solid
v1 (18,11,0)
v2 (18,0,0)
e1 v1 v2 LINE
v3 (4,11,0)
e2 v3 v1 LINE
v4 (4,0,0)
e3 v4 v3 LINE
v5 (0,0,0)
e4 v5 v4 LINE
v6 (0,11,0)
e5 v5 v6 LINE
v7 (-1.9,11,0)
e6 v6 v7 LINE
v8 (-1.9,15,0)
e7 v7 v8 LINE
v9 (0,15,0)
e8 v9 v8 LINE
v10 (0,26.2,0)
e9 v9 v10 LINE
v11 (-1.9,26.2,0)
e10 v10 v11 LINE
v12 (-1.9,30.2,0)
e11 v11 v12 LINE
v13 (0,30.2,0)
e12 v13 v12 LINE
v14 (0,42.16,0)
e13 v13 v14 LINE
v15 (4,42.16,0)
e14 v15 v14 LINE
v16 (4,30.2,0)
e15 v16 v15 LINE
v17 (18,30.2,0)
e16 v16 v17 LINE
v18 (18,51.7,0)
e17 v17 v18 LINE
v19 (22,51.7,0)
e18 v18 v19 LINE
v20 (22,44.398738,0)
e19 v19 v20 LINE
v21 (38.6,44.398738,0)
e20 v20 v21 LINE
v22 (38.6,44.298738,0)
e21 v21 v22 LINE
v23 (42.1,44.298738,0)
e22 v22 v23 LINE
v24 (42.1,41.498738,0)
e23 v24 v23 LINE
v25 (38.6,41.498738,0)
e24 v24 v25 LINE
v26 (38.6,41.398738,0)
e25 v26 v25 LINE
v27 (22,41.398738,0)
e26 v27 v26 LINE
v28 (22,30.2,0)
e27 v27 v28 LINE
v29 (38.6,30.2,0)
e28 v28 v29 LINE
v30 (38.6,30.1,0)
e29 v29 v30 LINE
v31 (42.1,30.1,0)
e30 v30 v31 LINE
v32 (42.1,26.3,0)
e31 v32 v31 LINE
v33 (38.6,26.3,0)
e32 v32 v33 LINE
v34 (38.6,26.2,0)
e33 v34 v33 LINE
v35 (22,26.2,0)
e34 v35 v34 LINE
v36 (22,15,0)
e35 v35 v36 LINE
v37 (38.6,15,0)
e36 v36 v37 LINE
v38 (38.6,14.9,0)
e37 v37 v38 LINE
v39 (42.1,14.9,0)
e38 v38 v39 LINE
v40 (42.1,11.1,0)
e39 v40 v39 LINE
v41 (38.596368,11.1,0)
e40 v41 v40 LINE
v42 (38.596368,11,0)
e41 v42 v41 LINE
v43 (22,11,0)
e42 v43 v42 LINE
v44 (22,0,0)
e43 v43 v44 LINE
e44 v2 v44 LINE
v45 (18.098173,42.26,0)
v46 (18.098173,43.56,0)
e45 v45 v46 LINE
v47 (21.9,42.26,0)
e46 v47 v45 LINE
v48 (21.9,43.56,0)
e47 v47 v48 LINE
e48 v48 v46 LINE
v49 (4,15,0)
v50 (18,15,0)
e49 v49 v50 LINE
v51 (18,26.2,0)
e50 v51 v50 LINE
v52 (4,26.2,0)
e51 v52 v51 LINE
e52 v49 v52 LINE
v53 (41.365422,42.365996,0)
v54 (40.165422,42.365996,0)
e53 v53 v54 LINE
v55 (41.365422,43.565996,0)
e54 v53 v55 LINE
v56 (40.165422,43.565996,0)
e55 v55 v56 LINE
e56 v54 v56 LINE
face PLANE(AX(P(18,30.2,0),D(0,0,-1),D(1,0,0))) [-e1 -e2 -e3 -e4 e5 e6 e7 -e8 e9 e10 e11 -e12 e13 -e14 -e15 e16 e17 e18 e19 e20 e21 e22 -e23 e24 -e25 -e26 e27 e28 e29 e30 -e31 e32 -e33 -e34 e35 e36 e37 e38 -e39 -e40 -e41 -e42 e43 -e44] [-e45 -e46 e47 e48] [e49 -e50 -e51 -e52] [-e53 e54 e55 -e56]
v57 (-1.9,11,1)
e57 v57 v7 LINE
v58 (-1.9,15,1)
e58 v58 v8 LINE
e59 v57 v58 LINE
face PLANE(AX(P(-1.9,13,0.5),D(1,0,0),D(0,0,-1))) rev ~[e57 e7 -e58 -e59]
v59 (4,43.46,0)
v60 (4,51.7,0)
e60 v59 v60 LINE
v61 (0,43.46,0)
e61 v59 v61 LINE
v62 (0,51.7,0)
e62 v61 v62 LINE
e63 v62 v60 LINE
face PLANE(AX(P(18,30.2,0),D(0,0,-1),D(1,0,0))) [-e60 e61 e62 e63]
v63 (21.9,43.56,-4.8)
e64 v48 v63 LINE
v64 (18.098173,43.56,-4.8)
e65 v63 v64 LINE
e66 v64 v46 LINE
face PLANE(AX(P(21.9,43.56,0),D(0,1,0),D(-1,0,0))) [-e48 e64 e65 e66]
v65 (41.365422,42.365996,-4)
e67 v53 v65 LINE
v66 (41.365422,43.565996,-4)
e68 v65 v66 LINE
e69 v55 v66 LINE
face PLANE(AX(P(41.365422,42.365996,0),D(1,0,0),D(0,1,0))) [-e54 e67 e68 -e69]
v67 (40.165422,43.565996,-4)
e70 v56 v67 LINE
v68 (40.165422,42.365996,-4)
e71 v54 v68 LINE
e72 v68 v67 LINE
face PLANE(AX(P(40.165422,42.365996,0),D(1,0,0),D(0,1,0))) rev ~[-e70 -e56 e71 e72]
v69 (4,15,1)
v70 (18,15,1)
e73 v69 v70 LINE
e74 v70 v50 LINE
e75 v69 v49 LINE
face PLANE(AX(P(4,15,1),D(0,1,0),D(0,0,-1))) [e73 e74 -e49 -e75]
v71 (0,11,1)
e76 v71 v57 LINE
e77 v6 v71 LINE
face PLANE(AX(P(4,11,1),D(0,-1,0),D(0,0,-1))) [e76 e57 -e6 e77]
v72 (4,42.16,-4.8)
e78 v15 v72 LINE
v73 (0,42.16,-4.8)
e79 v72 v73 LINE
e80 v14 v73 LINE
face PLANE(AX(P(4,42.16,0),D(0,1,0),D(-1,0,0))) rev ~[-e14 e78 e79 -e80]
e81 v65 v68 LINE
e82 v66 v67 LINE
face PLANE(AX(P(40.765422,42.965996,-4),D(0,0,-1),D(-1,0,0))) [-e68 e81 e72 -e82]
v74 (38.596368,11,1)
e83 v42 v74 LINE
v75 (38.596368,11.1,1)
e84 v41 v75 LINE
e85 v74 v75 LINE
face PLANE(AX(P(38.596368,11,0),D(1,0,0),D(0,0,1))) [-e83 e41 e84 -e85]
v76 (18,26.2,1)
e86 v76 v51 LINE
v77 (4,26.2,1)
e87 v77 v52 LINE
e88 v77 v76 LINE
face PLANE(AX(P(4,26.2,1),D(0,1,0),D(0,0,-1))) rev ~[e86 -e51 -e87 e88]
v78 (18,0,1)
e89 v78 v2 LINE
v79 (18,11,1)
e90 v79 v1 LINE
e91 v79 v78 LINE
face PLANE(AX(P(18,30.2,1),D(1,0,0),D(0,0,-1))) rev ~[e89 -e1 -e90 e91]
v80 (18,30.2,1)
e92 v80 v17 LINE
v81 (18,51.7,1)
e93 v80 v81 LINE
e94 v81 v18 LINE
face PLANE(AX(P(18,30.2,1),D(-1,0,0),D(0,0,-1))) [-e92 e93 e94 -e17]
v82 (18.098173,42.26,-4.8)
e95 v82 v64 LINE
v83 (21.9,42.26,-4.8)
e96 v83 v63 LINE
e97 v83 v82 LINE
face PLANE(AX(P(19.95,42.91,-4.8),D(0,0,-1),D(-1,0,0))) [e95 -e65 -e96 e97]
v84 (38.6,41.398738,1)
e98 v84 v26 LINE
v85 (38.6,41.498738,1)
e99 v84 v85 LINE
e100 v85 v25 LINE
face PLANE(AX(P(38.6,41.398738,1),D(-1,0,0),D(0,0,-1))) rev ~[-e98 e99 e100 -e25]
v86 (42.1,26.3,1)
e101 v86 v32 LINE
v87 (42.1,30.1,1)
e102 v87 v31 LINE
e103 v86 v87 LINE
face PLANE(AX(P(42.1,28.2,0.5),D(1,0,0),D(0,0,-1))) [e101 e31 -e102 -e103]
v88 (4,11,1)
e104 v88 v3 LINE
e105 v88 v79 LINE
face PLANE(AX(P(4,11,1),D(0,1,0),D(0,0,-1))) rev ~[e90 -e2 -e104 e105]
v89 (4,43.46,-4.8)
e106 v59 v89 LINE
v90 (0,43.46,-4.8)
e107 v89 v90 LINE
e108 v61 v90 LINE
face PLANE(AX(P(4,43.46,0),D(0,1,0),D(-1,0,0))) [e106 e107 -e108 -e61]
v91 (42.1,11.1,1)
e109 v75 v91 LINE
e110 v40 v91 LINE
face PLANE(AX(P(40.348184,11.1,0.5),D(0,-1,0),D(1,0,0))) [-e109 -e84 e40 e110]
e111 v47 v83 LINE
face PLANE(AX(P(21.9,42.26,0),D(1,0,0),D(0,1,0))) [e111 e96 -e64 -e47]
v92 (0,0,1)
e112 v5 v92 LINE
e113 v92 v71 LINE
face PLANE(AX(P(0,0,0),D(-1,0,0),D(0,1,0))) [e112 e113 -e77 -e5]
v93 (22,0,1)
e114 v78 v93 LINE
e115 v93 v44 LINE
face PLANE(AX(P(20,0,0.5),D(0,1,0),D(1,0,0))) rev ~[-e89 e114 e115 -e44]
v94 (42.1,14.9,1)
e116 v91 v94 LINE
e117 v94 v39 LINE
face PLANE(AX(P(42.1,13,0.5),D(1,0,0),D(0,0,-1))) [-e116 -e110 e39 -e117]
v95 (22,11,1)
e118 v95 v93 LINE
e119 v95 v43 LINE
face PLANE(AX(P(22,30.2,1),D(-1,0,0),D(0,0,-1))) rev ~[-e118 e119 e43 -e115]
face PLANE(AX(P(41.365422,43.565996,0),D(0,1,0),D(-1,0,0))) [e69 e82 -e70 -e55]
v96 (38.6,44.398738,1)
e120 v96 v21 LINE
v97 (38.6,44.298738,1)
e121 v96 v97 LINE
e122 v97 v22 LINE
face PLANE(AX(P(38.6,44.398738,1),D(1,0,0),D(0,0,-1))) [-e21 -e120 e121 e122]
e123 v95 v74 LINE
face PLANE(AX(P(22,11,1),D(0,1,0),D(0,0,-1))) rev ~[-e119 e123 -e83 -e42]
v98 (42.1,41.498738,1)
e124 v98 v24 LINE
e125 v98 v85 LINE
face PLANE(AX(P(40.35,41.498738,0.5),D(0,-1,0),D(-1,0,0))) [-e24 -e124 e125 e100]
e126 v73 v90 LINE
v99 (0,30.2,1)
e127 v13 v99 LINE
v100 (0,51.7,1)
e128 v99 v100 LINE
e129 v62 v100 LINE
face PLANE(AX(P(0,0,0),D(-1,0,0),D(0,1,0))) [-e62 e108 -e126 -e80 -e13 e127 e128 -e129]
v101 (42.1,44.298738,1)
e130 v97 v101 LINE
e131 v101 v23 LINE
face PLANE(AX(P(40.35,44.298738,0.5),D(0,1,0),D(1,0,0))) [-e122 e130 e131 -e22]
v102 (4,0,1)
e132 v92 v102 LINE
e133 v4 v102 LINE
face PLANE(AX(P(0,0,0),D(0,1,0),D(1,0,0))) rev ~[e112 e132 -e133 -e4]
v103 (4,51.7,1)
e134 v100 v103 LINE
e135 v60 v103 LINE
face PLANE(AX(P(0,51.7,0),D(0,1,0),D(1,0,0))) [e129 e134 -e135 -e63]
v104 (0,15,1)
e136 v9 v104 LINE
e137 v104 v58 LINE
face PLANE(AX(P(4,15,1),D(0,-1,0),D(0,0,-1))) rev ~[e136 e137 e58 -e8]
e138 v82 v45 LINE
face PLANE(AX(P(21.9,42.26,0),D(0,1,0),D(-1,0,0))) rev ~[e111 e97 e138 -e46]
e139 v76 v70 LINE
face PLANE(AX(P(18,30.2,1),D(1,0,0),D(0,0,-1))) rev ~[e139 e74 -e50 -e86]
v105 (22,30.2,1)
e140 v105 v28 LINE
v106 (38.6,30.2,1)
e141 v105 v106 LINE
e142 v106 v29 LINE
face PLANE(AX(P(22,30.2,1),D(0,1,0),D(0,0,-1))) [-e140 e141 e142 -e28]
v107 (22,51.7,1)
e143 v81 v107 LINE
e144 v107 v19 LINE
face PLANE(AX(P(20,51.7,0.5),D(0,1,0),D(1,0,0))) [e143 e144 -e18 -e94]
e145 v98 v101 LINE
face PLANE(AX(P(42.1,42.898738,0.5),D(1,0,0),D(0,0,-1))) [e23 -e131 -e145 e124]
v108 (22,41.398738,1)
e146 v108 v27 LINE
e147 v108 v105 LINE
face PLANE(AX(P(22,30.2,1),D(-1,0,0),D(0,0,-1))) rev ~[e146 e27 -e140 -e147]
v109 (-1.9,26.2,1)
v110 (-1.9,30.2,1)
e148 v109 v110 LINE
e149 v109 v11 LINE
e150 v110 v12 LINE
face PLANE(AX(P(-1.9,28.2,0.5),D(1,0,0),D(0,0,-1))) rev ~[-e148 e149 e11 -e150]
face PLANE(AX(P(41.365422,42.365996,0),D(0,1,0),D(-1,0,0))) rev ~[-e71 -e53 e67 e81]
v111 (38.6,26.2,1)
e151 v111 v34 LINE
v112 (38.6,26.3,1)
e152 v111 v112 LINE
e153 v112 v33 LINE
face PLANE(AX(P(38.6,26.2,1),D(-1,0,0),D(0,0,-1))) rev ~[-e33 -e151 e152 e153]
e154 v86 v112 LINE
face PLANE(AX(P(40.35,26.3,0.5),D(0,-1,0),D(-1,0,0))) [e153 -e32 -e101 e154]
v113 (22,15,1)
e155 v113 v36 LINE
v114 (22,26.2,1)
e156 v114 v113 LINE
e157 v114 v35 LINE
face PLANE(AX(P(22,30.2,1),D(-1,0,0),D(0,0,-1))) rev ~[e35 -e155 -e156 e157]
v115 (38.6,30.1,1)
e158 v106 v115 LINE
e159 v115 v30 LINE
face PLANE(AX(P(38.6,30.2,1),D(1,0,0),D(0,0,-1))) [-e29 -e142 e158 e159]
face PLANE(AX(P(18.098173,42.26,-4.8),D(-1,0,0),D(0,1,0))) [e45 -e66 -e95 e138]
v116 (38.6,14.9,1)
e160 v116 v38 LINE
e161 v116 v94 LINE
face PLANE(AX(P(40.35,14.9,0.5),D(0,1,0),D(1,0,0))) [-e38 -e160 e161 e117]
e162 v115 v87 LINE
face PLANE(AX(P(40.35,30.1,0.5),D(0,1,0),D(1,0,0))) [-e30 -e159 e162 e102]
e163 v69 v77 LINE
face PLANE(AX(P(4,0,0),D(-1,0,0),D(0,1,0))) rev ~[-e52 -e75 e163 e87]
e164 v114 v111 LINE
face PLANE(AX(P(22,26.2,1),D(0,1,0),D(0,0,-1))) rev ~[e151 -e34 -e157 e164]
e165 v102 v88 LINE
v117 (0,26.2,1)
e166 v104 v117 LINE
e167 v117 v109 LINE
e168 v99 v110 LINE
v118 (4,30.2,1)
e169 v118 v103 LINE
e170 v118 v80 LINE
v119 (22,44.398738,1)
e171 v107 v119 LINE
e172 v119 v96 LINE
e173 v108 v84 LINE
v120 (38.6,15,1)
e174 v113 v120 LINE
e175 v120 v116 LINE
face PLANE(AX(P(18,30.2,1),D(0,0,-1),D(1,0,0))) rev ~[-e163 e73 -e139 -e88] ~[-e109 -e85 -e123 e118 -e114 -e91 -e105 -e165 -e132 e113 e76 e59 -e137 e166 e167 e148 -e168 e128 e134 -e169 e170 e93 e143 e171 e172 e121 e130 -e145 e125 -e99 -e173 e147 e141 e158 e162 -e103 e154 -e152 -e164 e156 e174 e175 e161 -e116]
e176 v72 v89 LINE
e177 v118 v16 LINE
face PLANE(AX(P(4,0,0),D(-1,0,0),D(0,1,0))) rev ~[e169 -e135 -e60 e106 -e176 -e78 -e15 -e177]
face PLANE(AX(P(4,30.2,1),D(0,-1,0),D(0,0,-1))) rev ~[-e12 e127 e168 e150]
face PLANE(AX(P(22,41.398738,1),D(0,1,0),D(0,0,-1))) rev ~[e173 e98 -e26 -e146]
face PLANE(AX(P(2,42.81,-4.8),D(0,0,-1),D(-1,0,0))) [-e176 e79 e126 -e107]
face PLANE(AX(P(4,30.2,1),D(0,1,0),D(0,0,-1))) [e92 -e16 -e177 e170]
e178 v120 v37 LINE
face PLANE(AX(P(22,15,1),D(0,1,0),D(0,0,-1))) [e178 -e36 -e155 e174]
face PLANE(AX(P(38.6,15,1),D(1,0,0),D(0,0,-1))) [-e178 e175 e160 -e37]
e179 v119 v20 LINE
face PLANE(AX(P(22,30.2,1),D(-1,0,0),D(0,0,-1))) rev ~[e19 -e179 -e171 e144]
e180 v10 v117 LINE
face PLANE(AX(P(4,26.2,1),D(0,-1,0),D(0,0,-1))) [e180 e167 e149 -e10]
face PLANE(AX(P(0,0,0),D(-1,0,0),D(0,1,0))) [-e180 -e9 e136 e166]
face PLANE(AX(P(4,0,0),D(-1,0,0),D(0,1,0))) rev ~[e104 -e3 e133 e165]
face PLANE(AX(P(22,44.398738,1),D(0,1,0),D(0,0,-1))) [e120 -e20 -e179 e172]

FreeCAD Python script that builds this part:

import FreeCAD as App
import Part
import Sketcher

V = App.Vector
Q = App.Units.Quantity

doc = App.newDocument("Part")
params = doc.addObject("Spreadsheet::Sheet", "Params")
for row, (alias, value) in enumerate([
    ("sketch1_width", "4 mm"),
    ("sketch1_height", "51.7 mm"),
    ("pad1_length", "1 mm"),
    ("sketch2_width", "4 mm"),
    ("sketch2_height", "1 mm"),
    ("pad2_length", "18 mm"),
    ("pad2_length2", "5.9 mm"),
    ("sketch3_width", "4 mm"),
    ("sketch3_height", "1 mm"),
    ("pad3_length", "18 mm"),
    ("pad3_length2", "5.9 mm"),
    ("sketch4_width", "4 mm"),
    ("sketch4_height", "1 mm"),
    ("pad4_length", "21.5 mm"),
    ("pad4_length2", "30.2 mm"),
    ("sketch5_width", "3 mm"),
    ("sketch5_height", "1 mm"),
    ("pad5_length", "21 mm"),
    ("sketch6_width", "4 mm"),
    ("sketch6_height", "1 mm"),
    ("pad6_length", "21 mm"),
    ("sketch7_width", "4 mm"),
    ("sketch7_height", "1 mm"),
    ("pad7_length", "21 mm"),
    ("sketch8_width", "4 mm"),
    ("sketch8_height", "1.3 mm"),
    ("pad8_length", "4.8 mm"),
    ("sketch9_width", "3.9 mm"),
    ("sketch9_height", "1.3 mm"),
    ("pad9_length", "4.8 mm"),
    ("sketch10_width", "1.2 mm"),
    ("pad10_length", "4 mm"),
    ("sketch11_width", "4 mm"),
    ("sketch11_height", "1 mm"),
    ("pocket1_length", "0.9 mm"),
    ("sketch12_width", "4 mm"),
    ("sketch12_height", "1 mm"),
    ("pocket2_length", "0.9 mm"),
    ("sketch13_width", "3 mm"),
    ("sketch13_height", "1 mm"),
    ("pocket3_length", "0.9 mm"),
    ("sketch14_height", "1 mm"),
    ("pocket4_length", "0.1 mm"),
    ("sketch15_height", "1 mm"),
    ("sketch15_width", "3.5 mm"),
    ("pocket5_length", "0.1 mm"),
    ("sketch16_height", "1 mm"),
    ("sketch16_width", "3.5 mm"),
    ("pocket6_length", "0.1 mm"),
    ("sketch17_height", "1 mm"),
    ("sketch17_width", "3.5 mm"),
    ("pocket7_length", "0.1 mm"),
    ("sketch18_height", "1 mm"),
    ("sketch18_width", "3.5 mm"),
    ("pocket8_length", "0.1 mm"),
    ("sketch19_height", "1 mm"),
    ("sketch19_width", "3.5 mm"),
    ("pocket9_length", "0.1 mm"),
    ("sketch20_height", "1.3 mm"),
    ("pocket10_length", "4.8 mm"),
], start=1):
    params.set(f"A{row}", alias)
    params.set(f"B{row}", "=" + value)
    params.setAlias(f"B{row}", alias)

body = doc.addObject("PartDesign::Body", "Body")

sketch1 = body.newObject("Sketcher::SketchObject", "Sketch")
sketch1.AttachmentSupport = (doc.getObject("XY_Plane"), [""])
sketch1.MapMode = "FlatFace"
sketch1.addGeometry([
    Part.LineSegment(V(0, 51.7, 0), V(0, 0, 0)),
    Part.LineSegment(V(0, 0, 0), V(4, 0, 0)),
    Part.LineSegment(V(4, 0, 0), V(4, 51.7, 0)),
    Part.LineSegment(V(4, 51.7, 0), V(0, 51.7, 0)),
], False)
sketch1.addConstraint([
    Sketcher.Constraint("Coincident", 0, 2, 1, 1),
    Sketcher.Constraint("Coincident", 1, 2, 2, 1),
    Sketcher.Constraint("Coincident", 2, 2, 3, 1),
    Sketcher.Constraint("Coincident", 3, 2, 0, 1),
    Sketcher.Constraint("Vertical", 0),
    Sketcher.Constraint("Horizontal", 1),
    Sketcher.Constraint("Vertical", 2),
    Sketcher.Constraint("Horizontal", 3),
    Sketcher.Constraint("Coincident", 0, 2, -1, 1),
    Sketcher.Constraint("DistanceX", 1, 1, 1, 2, Q("4 mm")),
    Sketcher.Constraint("DistanceY", 0, 2, 0, 1, Q("51.7 mm")),
])
sketch1.setExpression("Constraints[9]", "Params.sketch1_width")
sketch1.setExpression("Constraints[10]", "Params.sketch1_height")
pad1 = body.newObject("PartDesign::Pad", "Pad")
pad1.Profile = sketch1
pad1.setExpression("Length", "Params.pad1_length")

sketch2 = body.newObject("Sketcher::SketchObject", "Sketch001")
sketch2.AttachmentSupport = (doc.getObject("YZ_Plane"), [""])
sketch2.MapMode = "FlatFace"
sketch2.AttachmentOffset = App.Placement(V(0, 0, 4), App.Rotation())
sketch2.addGeometry([
    Part.LineSegment(V(30.2, 1, 0), V(26.2, 1, 0)),
    Part.LineSegment(V(26.2, 1, 0), V(26.2, 0, 0)),
    Part.LineSegment(V(26.2, 0, 0), V(30.2, 0, 0)),
    Part.LineSegment(V(30.2, 0, 0), V(30.2, 1, 0)),
], False)
sketch2.addConstraint([
    Sketcher.Constraint("Coincident", 0, 2, 1, 1),
    Sketcher.Constraint("Coincident", 1, 2, 2, 1),
    Sketcher.Constraint("Coincident", 2, 2, 3, 1),
    Sketcher.Constraint("Coincident", 3, 2, 0, 1),
    Sketcher.Constraint("Horizontal", 0),
    Sketcher.Constraint("Vertical", 1),
    Sketcher.Constraint("Horizontal", 2),
    Sketcher.Constraint("Vertical", 3),
    Sketcher.Constraint("PointOnObject", 1, 2, -1),
    Sketcher.Constraint("DistanceX", 0, 2, 0, 1, Q("4 mm")),
    Sketcher.Constraint("DistanceY", 1, 2, 1, 1, Q("1 mm")),
    Sketcher.Constraint("DistanceX", -1, 1, 0, 2, Q("26.2 mm")),
])
sketch2.setExpression("Constraints[9]", "Params.sketch2_width")
sketch2.setExpression("Constraints[10]", "Params.sketch2_height")
pad2 = body.newObject("PartDesign::Pad", "Pad001")
pad2.Profile = sketch2
pad2.Type = "TwoLengths"
pad2.setExpression("Length", "Params.pad2_length")
pad2.setExpression("Length2", "Params.pad2_length2")

sketch3 = body.newObject("Sketcher::SketchObject", "Sketch002")
sketch3.AttachmentSupport = (doc.getObject("YZ_Plane"), [""])
sketch3.MapMode = "FlatFace"
sketch3.AttachmentOffset = App.Placement(V(0, 0, 4), App.Rotation())
sketch3.addGeometry([
    Part.LineSegment(V(15, 1, 0), V(11, 1, 0)),
    Part.LineSegment(V(11, 1, 0), V(11, 0, 0)),
    Part.LineSegment(V(11, 0, 0), V(15, 0, 0)),
    Part.LineSegment(V(15, 0, 0), V(15, 1, 0)),
], False)
sketch3.addConstraint([
    Sketcher.Constraint("Coincident", 0, 2, 1, 1),
    Sketcher.Constraint("Coincident", 1, 2, 2, 1),
    Sketcher.Constraint("Coincident", 2, 2, 3, 1),
    Sketcher.Constraint("Coincident", 3, 2, 0, 1),
    Sketcher.Constraint("Horizontal", 0),
    Sketcher.Constraint("Vertical", 1),
    Sketcher.Constraint("Horizontal", 2),
    Sketcher.Constraint("Vertical", 3),
    Sketcher.Constraint("PointOnObject", 1, 2, -1),
    Sketcher.Constraint("DistanceX", 0, 2, 0, 1, Q("4 mm")),
    Sketcher.Constraint("DistanceY", 1, 2, 1, 1, Q("1 mm")),
    Sketcher.Constraint("DistanceX", -1, 1, 0, 2, Q("11 mm")),
])
sketch3.setExpression("Constraints[9]", "Params.sketch3_width")
sketch3.setExpression("Constraints[10]", "Params.sketch3_height")
pad3 = body.newObject("PartDesign::Pad", "Pad002")
pad3.Profile = sketch3
pad3.Type = "TwoLengths"
pad3.setExpression("Length", "Params.pad3_length")
pad3.setExpression("Length2", "Params.pad3_length2")

sketch4 = body.newObject("Sketcher::SketchObject", "Sketch003")
sketch4.AttachmentSupport = (doc.getObject("XZ_Plane"), [""])
sketch4.MapMode = "FlatFace"
sketch4.AttachmentOffset = App.Placement(V(0, 0, -30.2), App.Rotation())
sketch4.addGeometry([
    Part.LineSegment(V(18, 0, 0), V(18, 1, 0)),
    Part.LineSegment(V(18, 1, 0), V(22, 1, 0)),
    Part.LineSegment(V(22, 1, 0), V(22, 0, 0)),
    Part.LineSegment(V(22, 0, 0), V(18, 0, 0)),
], False)
sketch4.addConstraint([
    Sketcher.Constraint("Coincident", 0, 2, 1, 1),
    Sketcher.Constraint("Coincident", 1, 2, 2, 1),
    Sketcher.Constraint("Coincident", 2, 2, 3, 1),
    Sketcher.Constraint("Coincident", 3, 2, 0, 1),
    Sketcher.Constraint("Vertical", 0),
    Sketcher.Constraint("Horizontal", 1),
    Sketcher.Constraint("Vertical", 2),
    Sketcher.Constraint("Horizontal", 3),
    Sketcher.Constraint("PointOnObject", 2, 2, -1),
    Sketcher.Constraint("DistanceX", 1, 1, 1, 2, Q("4 mm")),
    Sketcher.Constraint("DistanceY", 0, 1, 0, 2, Q("1 mm")),
    Sketcher.Constraint("DistanceX", -1, 1, 0, 2, Q("18 mm")),
])
sketch4.setExpression("Constraints[9]", "Params.sketch4_width")
sketch4.setExpression("Constraints[10]", "Params.sketch4_height")
pad4 = body.newObject("PartDesign::Pad", "Pad003")
pad4.Profile = sketch4
pad4.Type = "TwoLengths"
pad4.setExpression("Length", "Params.pad4_length")
pad4.setExpression("Length2", "Params.pad4_length2")
pad4.Reversed = True

sketch5 = body.newObject("Sketcher::SketchObject", "Sketch004")
sketch5.AttachmentSupport = (doc.getObject("YZ_Plane"), [""])
sketch5.MapMode = "FlatFace"
sketch5.AttachmentOffset = App.Placement(V(0, 0, 22), App.Rotation())
sketch5.addGeometry([
    Part.LineSegment(V(44.4, 1, 0), V(41.4, 1, 0)),
    Part.LineSegment(V(41.4, 1, 0), V(41.4, 0, 0)),
    Part.LineSegment(V(41.4, 0, 0), V(44.4, 0, 0)),
    Part.LineSegment(V(44.4, 0, 0), V(44.4, 1, 0)),
], False)
sketch5.addConstraint([
    Sketcher.Constraint("Coincident", 0, 2, 1, 1),
    Sketcher.Constraint("Coincident", 1, 2, 2, 1),
    Sketcher.Constraint("Coincident", 2, 2, 3, 1),
    Sketcher.Constraint("Coincident", 3, 2, 0, 1),
    Sketcher.Constraint("Horizontal", 0),
    Sketcher.Constraint("Vertical", 1),
    Sketcher.Constraint("Horizontal", 2),
    Sketcher.Constraint("Vertical", 3),
    Sketcher.Constraint("PointOnObject", 1, 2, -1),
    Sketcher.Constraint("DistanceX", 0, 2, 0, 1, Q("3 mm")),
    Sketcher.Constraint("DistanceY", 1, 2, 1, 1, Q("1 mm")),
    Sketcher.Constraint("DistanceX", -1, 1, 0, 2, Q("41.398738 mm")),
])
sketch5.setExpression("Constraints[9]", "Params.sketch5_width")
sketch5.setExpression("Constraints[10]", "Params.sketch5_height")
pad5 = body.newObject("PartDesign::Pad", "Pad004")
pad5.Profile = sketch5
pad5.setExpression("Length", "Params.pad5_length")

sketch6 = body.newObject("Sketcher::SketchObject", "Sketch005")
sketch6.AttachmentSupport = (doc.getObject("YZ_Plane"), [""])
sketch6.MapMode = "FlatFace"
sketch6.AttachmentOffset = App.Placement(V(0, 0, 22), App.Rotation())
sketch6.addGeometry([
    Part.LineSegment(V(15, 1, 0), V(11, 1, 0)),
    Part.LineSegment(V(11, 1, 0), V(11, 0, 0)),
    Part.LineSegment(V(11, 0, 0), V(15, 0, 0)),
    Part.LineSegment(V(15, 0, 0), V(15, 1, 0)),
], False)
sketch6.addConstraint([
    Sketcher.Constraint("Coincident", 0, 2, 1, 1),
    Sketcher.Constraint("Coincident", 1, 2, 2, 1),
    Sketcher.Constraint("Coincident", 2, 2, 3, 1),
    Sketcher.Constraint("Coincident", 3, 2, 0, 1),
    Sketcher.Constraint("Horizontal", 0),
    Sketcher.Constraint("Vertical", 1),
    Sketcher.Constraint("Horizontal", 2),
    Sketcher.Constraint("Vertical", 3),
    Sketcher.Constraint("PointOnObject", 1, 2, -1),
    Sketcher.Constraint("DistanceX", 0, 2, 0, 1, Q("4 mm")),
    Sketcher.Constraint("DistanceY", 1, 2, 1, 1, Q("1 mm")),
    Sketcher.Constraint("DistanceX", -1, 1, 0, 2, Q("11 mm")),
])
sketch6.setExpression("Constraints[9]", "Params.sketch6_width")
sketch6.setExpression("Constraints[10]", "Params.sketch6_height")
pad6 = body.newObject("PartDesign::Pad", "Pad005")
pad6.Profile = sketch6
pad6.setExpression("Length", "Params.pad6_length")

sketch7 = body.newObject("Sketcher::SketchObject", "Sketch006")
sketch7.AttachmentSupport = (doc.getObject("YZ_Plane"), [""])
sketch7.MapMode = "FlatFace"
sketch7.AttachmentOffset = App.Placement(V(0, 0, 22), App.Rotation())
sketch7.addGeometry([
    Part.LineSegment(V(30.2, 1, 0), V(26.2, 1, 0)),
    Part.LineSegment(V(26.2, 1, 0), V(26.2, 0, 0)),
    Part.LineSegment(V(26.2, 0, 0), V(30.2, 0, 0)),
    Part.LineSegment(V(30.2, 0, 0), V(30.2, 1, 0)),
], False)
sketch7.addConstraint([
    Sketcher.Constraint("Coincident", 0, 2, 1, 1),
    Sketcher.Constraint("Coincident", 1, 2, 2, 1),
    Sketcher.Constraint("Coincident", 2, 2, 3, 1),
    Sketcher.Constraint("Coincident", 3, 2, 0, 1),
    Sketcher.Constraint("Horizontal", 0),
    Sketcher.Constraint("Vertical", 1),
    Sketcher.Constraint("Horizontal", 2),
    Sketcher.Constraint("Vertical", 3),
    Sketcher.Constraint("PointOnObject", 1, 2, -1),
    Sketcher.Constraint("DistanceX", 0, 2, 0, 1, Q("4 mm")),
    Sketcher.Constraint("DistanceY", 1, 2, 1, 1, Q("1 mm")),
    Sketcher.Constraint("DistanceX", -1, 1, 0, 2, Q("26.2 mm")),
])
sketch7.setExpression("Constraints[9]", "Params.sketch7_width")
sketch7.setExpression("Constraints[10]", "Params.sketch7_height")
pad7 = body.newObject("PartDesign::Pad", "Pad006")
pad7.Profile = sketch7
pad7.setExpression("Length", "Params.pad7_length")

sketch8 = body.newObject("Sketcher::SketchObject", "Sketch007")
sketch8.AttachmentSupport = (doc.getObject("XY_Plane"), [""])
sketch8.MapMode = "FlatFace"
sketch8.addGeometry([
    Part.LineSegment(V(4, 43.5, 0), V(4, 42.2, 0)),
    Part.LineSegment(V(4, 42.2, 0), V(0, 42.2, 0)),
    Part.LineSegment(V(0, 42.2, 0), V(0, 43.5, 0)),
    Part.LineSegment(V(0, 43.5, 0), V(4, 43.5, 0)),
], False)
sketch8.addConstraint([
    Sketcher.Constraint("Coincident", 0, 2, 1, 1),
    Sketcher.Constraint("Coincident", 1, 2, 2, 1),
    Sketcher.Constraint("Coincident", 2, 2, 3, 1),
    Sketcher.Constraint("Coincident", 3, 2, 0, 1),
    Sketcher.Constraint("Vertical", 0),
    Sketcher.Constraint("Horizontal", 1),
    Sketcher.Constraint("Vertical", 2),
    Sketcher.Constraint("Horizontal", 3),
    Sketcher.Constraint("PointOnObject", 1, 2, -2),
    Sketcher.Constraint("DistanceX", 1, 2, 1, 1, Q("4 mm")),
    Sketcher.Constraint("DistanceY", 0, 2, 0, 1, Q("1.3 mm")),
    Sketcher.Constraint("DistanceY", -1, 1, 0, 2, Q("42.16 mm")),
])
sketch8.setExpression("Constraints[9]", "Params.sketch8_width")
sketch8.setExpression("Constraints[10]", "Params.sketch8_height")
pad8 = body.newObject("PartDesign::Pad", "Pad007")
pad8.Profile = sketch8
pad8.setExpression("Length", "Params.pad8_length")
pad8.Reversed = True

sketch9 = body.newObject("Sketcher::SketchObject", "Sketch008")
sketch9.AttachmentSupport = (doc.getObject("XY_Plane"), [""])
sketch9.MapMode = "FlatFace"
sketch9.addGeometry([
    Part.LineSegment(V(21.9, 43.6, 0), V(21.9, 42.3, 0)),
    Part.LineSegment(V(21.9, 42.3, 0), V(18, 42.3, 0)),
    Part.LineSegment(V(18, 42.3, 0), V(18, 43.6, 0)),
    Part.LineSegment(V(18, 43.6, 0), V(21.9, 43.6, 0)),
], False)
sketch9.addConstraint([
    Sketcher.Constraint("Coincident", 0, 2, 1, 1),
    Sketcher.Constraint("Coincident", 1, 2, 2, 1),
    Sketcher.Constraint("Coincident", 2, 2, 3, 1),
    Sketcher.Constraint("Coincident", 3, 2, 0, 1),
    Sketcher.Constraint("Vertical", 0),
    Sketcher.Constraint("Horizontal", 1),
    Sketcher.Constraint("Vertical", 2),
    Sketcher.Constraint("Horizontal", 3),
    Sketcher.Constraint("DistanceX", 1, 2, 1, 1, Q("3.9 mm")),
    Sketcher.Constraint("DistanceY", 0, 2, 0, 1, Q("1.3 mm")),
    Sketcher.Constraint("DistanceX", -1, 1, 1, 2, Q("18 mm")),
    Sketcher.Constraint("DistanceY", -1, 1, 0, 2, Q("42.26 mm")),
])
sketch9.setExpression("Constraints[8]", "Params.sketch9_width")
sketch9.setExpression("Constraints[9]", "Params.sketch9_height")
pad9 = body.newObject("PartDesign::Pad", "Pad008")
pad9.Profile = sketch9
pad9.setExpression("Length", "Params.pad9_length")
pad9.Reversed = True

sketch10 = body.newObject("Sketcher::SketchObject", "Sketch009")
sketch10.AttachmentSupport = (doc.getObject("XY_Plane"), [""])
sketch10.MapMode = "FlatFace"
sketch10.addGeometry([
    Part.LineSegment(V(41.4, 43.6, 0), V(41.4, 42.4, 0)),
    Part.LineSegment(V(41.4, 42.4, 0), V(40.2, 42.4, 0)),
    Part.LineSegment(V(40.2, 42.4, 0), V(40.2, 43.6, 0)),
    Part.LineSegment(V(40.2, 43.6, 0), V(41.4, 43.6, 0)),
], False)
sketch10.addConstraint([
    Sketcher.Constraint("Coincident", 0, 2, 1, 1),
    Sketcher.Constraint("Coincident", 1, 2, 2, 1),
    Sketcher.Constraint("Coincident", 2, 2, 3, 1),
    Sketcher.Constraint("Coincident", 3, 2, 0, 1),
    Sketcher.Constraint("Vertical", 0),
    Sketcher.Constraint("Horizontal", 1),
    Sketcher.Constraint("Vertical", 2),
    Sketcher.Constraint("Horizontal", 3),
    Sketcher.Constraint("Equal", 3, 0),
    Sketcher.Constraint("DistanceX", 1, 2, 1, 1, Q("1.2 mm")),
    Sketcher.Constraint("DistanceX", -1, 1, 0, 2, Q("41.365422 mm")),
    Sketcher.Constraint("DistanceY", -1, 1, 0, 2, Q("42.365996 mm")),
])
sketch10.setExpression("Constraints[9]", "Params.sketch10_width")
pad10 = body.newObject("PartDesign::Pad", "Pad009")
pad10.Profile = sketch10
pad10.setExpression("Length", "Params.pad10_length")
pad10.Reversed = True

sketch11 = body.newObject("Sketcher::SketchObject", "Sketch010")
sketch11.AttachmentSupport = (doc.getObject("YZ_Plane"), [""])
sketch11.MapMode = "FlatFace"
sketch11.AttachmentOffset = App.Placement(V(0, 0, 43), App.Rotation())
sketch11.addGeometry([
    Part.LineSegment(V(30.2, 1, 0), V(26.2, 1, 0)),
    Part.LineSegment(V(26.2, 1, 0), V(26.2, 0, 0)),
    Part.LineSegment(V(26.2, 0, 0), V(30.2, 0, 0)),
    Part.LineSegment(V(30.2, 0, 0), V(30.2, 1, 0)),
], False)
sketch11.addConstraint([
    Sketcher.Constraint("Coincident", 0, 2, 1, 1),
    Sketcher.Constraint("Coincident", 1, 2, 2, 1),
    Sketcher.Constraint("Coincident", 2, 2, 3, 1),
    Sketcher.Constraint("Coincident", 3, 2, 0, 1),
    Sketcher.Constraint("Horizontal", 0),
    Sketcher.Constraint("Vertical", 1),
    Sketcher.Constraint("Horizontal", 2),
    Sketcher.Constraint("Vertical", 3),
    Sketcher.Constraint("PointOnObject", 1, 2, -1),
    Sketcher.Constraint("DistanceX", 0, 2, 0, 1, Q("4 mm")),
    Sketcher.Constraint("DistanceY", 1, 2, 1, 1, Q("1 mm")),
    Sketcher.Constraint("DistanceX", -1, 1, 0, 2, Q("26.2 mm")),
])
sketch11.setExpression("Constraints[9]", "Params.sketch11_width")
sketch11.setExpression("Constraints[10]", "Params.sketch11_height")
pocket1 = body.newObject("PartDesign::Pocket", "Pocket")
pocket1.Profile = sketch11
pocket1.setExpression("Length", "Params.pocket1_length")

sketch12 = body.newObject("Sketcher::SketchObject", "Sketch011")
sketch12.AttachmentSupport = (doc.getObject("YZ_Plane"), [""])
sketch12.MapMode = "FlatFace"
sketch12.AttachmentOffset = App.Placement(V(0, 0, 43), App.Rotation())
sketch12.addGeometry([
    Part.LineSegment(V(15, 1, 0), V(11, 1, 0)),
    Part.LineSegment(V(11, 1, 0), V(11, 0, 0)),
    Part.LineSegment(V(11, 0, 0), V(15, 0, 0)),
    Part.LineSegment(V(15, 0, 0), V(15, 1, 0)),
], False)
sketch12.addConstraint([
    Sketcher.Constraint("Coincident", 0, 2, 1, 1),
    Sketcher.Constraint("Coincident", 1, 2, 2, 1),
    Sketcher.Constraint("Coincident", 2, 2, 3, 1),
    Sketcher.Constraint("Coincident", 3, 2, 0, 1),
    Sketcher.Constraint("Horizontal", 0),
    Sketcher.Constraint("Vertical", 1),
    Sketcher.Constraint("Horizontal", 2),
    Sketcher.Constraint("Vertical", 3),
    Sketcher.Constraint("PointOnObject", 1, 2, -1),
    Sketcher.Constraint("DistanceX", 0, 2, 0, 1, Q("4 mm")),
    Sketcher.Constraint("DistanceY", 1, 2, 1, 1, Q("1 mm")),
    Sketcher.Constraint("DistanceX", -1, 1, 0, 2, Q("11 mm")),
])
sketch12.setExpression("Constraints[9]", "Params.sketch12_width")
sketch12.setExpression("Constraints[10]", "Params.sketch12_height")
pocket2 = body.newObject("PartDesign::Pocket", "Pocket001")
pocket2.Profile = sketch12
pocket2.setExpression("Length", "Params.pocket2_length")

sketch13 = body.newObject("Sketcher::SketchObject", "Sketch012")
sketch13.AttachmentSupport = (doc.getObject("YZ_Plane"), [""])
sketch13.MapMode = "FlatFace"
sketch13.AttachmentOffset = App.Placement(V(0, 0, 43), App.Rotation())
sketch13.addGeometry([
    Part.LineSegment(V(44.4, 1, 0), V(41.4, 1, 0)),
    Part.LineSegment(V(41.4, 1, 0), V(41.4, 0, 0)),
    Part.LineSegment(V(41.4, 0, 0), V(44.4, 0, 0)),
    Part.LineSegment(V(44.4, 0, 0), V(44.4, 1, 0)),
], False)
sketch13.addConstraint([
    Sketcher.Constraint("Coincident", 0, 2, 1, 1),
    Sketcher.Constraint("Coincident", 1, 2, 2, 1),
    Sketcher.Constraint("Coincident", 2, 2, 3, 1),
    Sketcher.Constraint("Coincident", 3, 2, 0, 1),
    Sketcher.Constraint("Horizontal", 0),
    Sketcher.Constraint("Vertical", 1),
    Sketcher.Constraint("Horizontal", 2),
    Sketcher.Constraint("Vertical", 3),
    Sketcher.Constraint("PointOnObject", 1, 2, -1),
    Sketcher.Constraint("DistanceX", 0, 2, 0, 1, Q("3 mm")),
    Sketcher.Constraint("DistanceY", 1, 2, 1, 1, Q("1 mm")),
    Sketcher.Constraint("DistanceX", -1, 1, 0, 2, Q("41.398738 mm")),
])
sketch13.setExpression("Constraints[9]", "Params.sketch13_width")
sketch13.setExpression("Constraints[10]", "Params.sketch13_height")
pocket3 = body.newObject("PartDesign::Pocket", "Pocket002")
pocket3.Profile = sketch13
pocket3.setExpression("Length", "Params.pocket3_length")

sketch14 = body.newObject("Sketcher::SketchObject", "Sketch013")
sketch14.AttachmentSupport = (doc.getObject("XZ_Plane"), [""])
sketch14.MapMode = "FlatFace"
sketch14.AttachmentOffset = App.Placement(V(0, 0, -11), App.Rotation())
sketch14.addGeometry([
    Part.LineSegment(V(38.6, 1, 0), V(38.6, 0, 0)),
    Part.LineSegment(V(38.6, 0, 0), V(42.1, 0, 0)),
    Part.LineSegment(V(42.1, 0, 0), V(42.1, 1, 0)),
    Part.LineSegment(V(42.1, 1, 0), V(38.6, 1, 0)),
], False)
sketch14.addConstraint([
    Sketcher.Constraint("Coincident", 0, 2, 1, 1),
    Sketcher.Constraint("Coincident", 1, 2, 2, 1),
    Sketcher.Constraint("Coincident", 2, 2, 3, 1),
    Sketcher.Constraint("Coincident", 3, 2, 0, 1),
    Sketcher.Constraint("Vertical", 0),
    Sketcher.Constraint("Horizontal", 1),
    Sketcher.Constraint("Vertical", 2),
    Sketcher.Constraint("Horizontal", 3),
    Sketcher.Constraint("PointOnObject", 0, 2, -1),
    Sketcher.Constraint("DistanceY", 0, 2, 0, 1, Q("1 mm")),
    Sketcher.Constraint("DistanceX", -1, 1, 1, 2, Q("42.1 mm")),
    Sketcher.Constraint("DistanceX", 1, 1, 1, 2, Q("3.503632 mm")),
])
sketch14.setExpression("Constraints[9]", "Params.sketch14_height")
pocket4 = body.newObject("PartDesign::Pocket", "Pocket003")
pocket4.Profile = sketch14
pocket4.setExpression("Length", "Params.pocket4_length")

sketch15 = body.newObject("Sketcher::SketchObject", "Sketch014")
sketch15.AttachmentSupport = (doc.getObject("XZ_Plane"), [""])
sketch15.MapMode = "FlatFace"
sketch15.AttachmentOffset = App.Placement(V(0, 0, -15), App.Rotation())
sketch15.addGeometry([
    Part.LineSegment(V(38.6, 0, 0), V(38.6, 1, 0)),
    Part.LineSegment(V(38.6, 1, 0), V(42.1, 1, 0)),
    Part.LineSegment(V(42.1, 1, 0), V(42.1, 0, 0)),
    Part.LineSegment(V(42.1, 0, 0), V(38.6, 0, 0)),
], False)
sketch15.addConstraint([
    Sketcher.Constraint("Coincident", 0, 2, 1, 1),
    Sketcher.Constraint("Coincident", 1, 2, 2, 1),
    Sketcher.Constraint("Coincident", 2, 2, 3, 1),
    Sketcher.Constraint("Coincident", 3, 2, 0, 1),
    Sketcher.Constraint("Vertical", 0),
    Sketcher.Constraint("Horizontal", 1),
    Sketcher.Constraint("Vertical", 2),
    Sketcher.Constraint("Horizontal", 3),
    Sketcher.Constraint("PointOnObject", 2, 2, -1),
    Sketcher.Constraint("DistanceY", 0, 1, 0, 2, Q("1 mm")),
    Sketcher.Constraint("DistanceX", 1, 1, 1, 2, Q("3.5 mm")),
    Sketcher.Constraint("DistanceX", -1, 1, 0, 2, Q("38.6 mm")),
])
sketch15.setExpression("Constraints[9]", "Params.sketch15_height")
sketch15.setExpression("Constraints[10]", "Params.sketch15_width")
pocket5 = body.newObject("PartDesign::Pocket", "Pocket004")
pocket5.Profile = sketch15
pocket5.setExpression("Length", "Params.pocket5_length")
pocket5.Reversed = True

sketch16 = body.newObject("Sketcher::SketchObject", "Sketch015")
sketch16.AttachmentSupport = (doc.getObject("XZ_Plane"), [""])
sketch16.MapMode = "FlatFace"
sketch16.AttachmentOffset = App.Placement(V(0, 0, -30.2), App.Rotation())
sketch16.addGeometry([
    Part.LineSegment(V(38.6, 0, 0), V(38.6, 1, 0)),
    Part.LineSegment(V(38.6, 1, 0), V(42.1, 1, 0)),
    Part.LineSegment(V(42.1, 1, 0), V(42.1, 0, 0)),
    Part.LineSegment(V(42.1, 0, 0), V(38.6, 0, 0)),
], False)
sketch16.addConstraint([
    Sketcher.Constraint("Coincident", 0, 2, 1, 1),
    Sketcher.Constraint("Coincident", 1, 2, 2, 1),
    Sketcher.Constraint("Coincident", 2, 2, 3, 1),
    Sketcher.Constraint("Coincident", 3, 2, 0, 1),
    Sketcher.Constraint("Vertical", 0),
    Sketcher.Constraint("Horizontal", 1),
    Sketcher.Constraint("Vertical", 2),
    Sketcher.Constraint("Horizontal", 3),
    Sketcher.Constraint("PointOnObject", 2, 2, -1),
    Sketcher.Constraint("DistanceY", 0, 1, 0, 2, Q("1 mm")),
    Sketcher.Constraint("DistanceX", 1, 1, 1, 2, Q("3.5 mm")),
    Sketcher.Constraint("DistanceX", -1, 1, 0, 2, Q("38.6 mm")),
])
sketch16.setExpression("Constraints[9]", "Params.sketch16_height")
sketch16.setExpression("Constraints[10]", "Params.sketch16_width")
pocket6 = body.newObject("PartDesign::Pocket", "Pocket005")
pocket6.Profile = sketch16
pocket6.setExpression("Length", "Params.pocket6_length")
pocket6.Reversed = True

sketch17 = body.newObject("Sketcher::SketchObject", "Sketch016")
sketch17.AttachmentSupport = (doc.getObject("XZ_Plane"), [""])
sketch17.MapMode = "FlatFace"
sketch17.AttachmentOffset = App.Placement(V(0, 0, -26.2), App.Rotation())
sketch17.addGeometry([
    Part.LineSegment(V(42.1, 0, 0), V(42.1, 1, 0)),
    Part.LineSegment(V(42.1, 1, 0), V(38.6, 1, 0)),
    Part.LineSegment(V(38.6, 1, 0), V(38.6, 0, 0)),
    Part.LineSegment(V(38.6, 0, 0), V(42.1, 0, 0)),
], False)
sketch17.addConstraint([
    Sketcher.Constraint("Coincident", 0, 2, 1, 1),
    Sketcher.Constraint("Coincident", 1, 2, 2, 1),
    Sketcher.Constraint("Coincident", 2, 2, 3, 1),
    Sketcher.Constraint("Coincident", 3, 2, 0, 1),
    Sketcher.Constraint("Vertical", 0),
    Sketcher.Constraint("Horizontal", 1),
    Sketcher.Constraint("Vertical", 2),
    Sketcher.Constraint("Horizontal", 3),
    Sketcher.Constraint("PointOnObject", 2, 2, -1),
    Sketcher.Constraint("DistanceY", 0, 1, 0, 2, Q("1 mm")),
    Sketcher.Constraint("DistanceX", 1, 2, 1, 1, Q("3.5 mm")),
    Sketcher.Constraint("DistanceX", -1, 1, 0, 2, Q("42.1 mm")),
])
sketch17.setExpression("Constraints[9]", "Params.sketch17_height")
sketch17.setExpression("Constraints[10]", "Params.sketch17_width")
pocket7 = body.newObject("PartDesign::Pocket", "Pocket006")
pocket7.Profile = sketch17
pocket7.setExpression("Length", "Params.pocket7_length")

sketch18 = body.newObject("Sketcher::SketchObject", "Sketch017")
sketch18.AttachmentSupport = (doc.getObject("XZ_Plane"), [""])
sketch18.MapMode = "FlatFace"
sketch18.AttachmentOffset = App.Placement(V(0, 0, -41.398738), App.Rotation())
sketch18.addGeometry([
    Part.LineSegment(V(42.1, 0, 0), V(42.1, 1, 0)),
    Part.LineSegment(V(42.1, 1, 0), V(38.6, 1, 0)),
    Part.LineSegment(V(38.6, 1, 0), V(38.6, 0, 0)),
    Part.LineSegment(V(38.6, 0, 0), V(42.1, 0, 0)),
], False)
sketch18.addConstraint([
    Sketcher.Constraint("Coincident", 0, 2, 1, 1),
    Sketcher.Constraint("Coincident", 1, 2, 2, 1),
    Sketcher.Constraint("Coincident", 2, 2, 3, 1),
    Sketcher.Constraint("Coincident", 3, 2, 0, 1),
    Sketcher.Constraint("Vertical", 0),
    Sketcher.Constraint("Horizontal", 1),
    Sketcher.Constraint("Vertical", 2),
    Sketcher.Constraint("Horizontal", 3),
    Sketcher.Constraint("PointOnObject", 2, 2, -1),
    Sketcher.Constraint("DistanceY", 0, 1, 0, 2, Q("1 mm")),
    Sketcher.Constraint("DistanceX", 1, 2, 1, 1, Q("3.5 mm")),
    Sketcher.Constraint("DistanceX", -1, 1, 0, 2, Q("42.1 mm")),
])
sketch18.setExpression("Constraints[9]", "Params.sketch18_height")
sketch18.setExpression("Constraints[10]", "Params.sketch18_width")
pocket8 = body.newObject("PartDesign::Pocket", "Pocket007")
pocket8.Profile = sketch18
pocket8.setExpression("Length", "Params.pocket8_length")

sketch19 = body.newObject("Sketcher::SketchObject", "Sketch018")
sketch19.AttachmentSupport = (doc.getObject("XZ_Plane"), [""])
sketch19.MapMode = "FlatFace"
sketch19.AttachmentOffset = App.Placement(V(0, 0, -44.398738), App.Rotation())
sketch19.addGeometry([
    Part.LineSegment(V(38.6, 0, 0), V(38.6, 1, 0)),
    Part.LineSegment(V(38.6, 1, 0), V(42.1, 1, 0)),
    Part.LineSegment(V(42.1, 1, 0), V(42.1, 0, 0)),
    Part.LineSegment(V(42.1, 0, 0), V(38.6, 0, 0)),
], False)
sketch19.addConstraint([
    Sketcher.Constraint("Coincident", 0, 2, 1, 1),
    Sketcher.Constraint("Coincident", 1, 2, 2, 1),
    Sketcher.Constraint("Coincident", 2, 2, 3, 1),
    Sketcher.Constraint("Coincident", 3, 2, 0, 1),
    Sketcher.Constraint("Vertical", 0),
    Sketcher.Constraint("Horizontal", 1),
    Sketcher.Constraint("Vertical", 2),
    Sketcher.Constraint("Horizontal", 3),
    Sketcher.Constraint("PointOnObject", 2, 2, -1),
    Sketcher.Constraint("DistanceY", 0, 1, 0, 2, Q("1 mm")),
    Sketcher.Constraint("DistanceX", 1, 1, 1, 2, Q("3.5 mm")),
    Sketcher.Constraint("DistanceX", -1, 1, 0, 2, Q("38.6 mm")),
])
sketch19.setExpression("Constraints[9]", "Params.sketch19_height")
sketch19.setExpression("Constraints[10]", "Params.sketch19_width")
pocket9 = body.newObject("PartDesign::Pocket", "Pocket008")
pocket9.Profile = sketch19
pocket9.setExpression("Length", "Params.pocket9_length")
pocket9.Reversed = True

sketch20 = body.newObject("Sketcher::SketchObject", "Sketch019")
sketch20.AttachmentSupport = (doc.getObject("XY_Plane"), [""])
sketch20.MapMode = "FlatFace"
sketch20.AttachmentOffset = App.Placement(V(0, 0, -4.8), App.Rotation())
sketch20.addGeometry([
    Part.LineSegment(V(18.1, 43.56, 0), V(18.1, 42.26, 0)),
    Part.LineSegment(V(18.1, 42.26, 0), V(18, 42.26, 0)),
    Part.LineSegment(V(18, 42.26, 0), V(18, 43.56, 0)),
    Part.LineSegment(V(18, 43.56, 0), V(18.1, 43.56, 0)),
], False)
sketch20.addConstraint([
    Sketcher.Constraint("Coincident", 0, 2, 1, 1),
    Sketcher.Constraint("Coincident", 1, 2, 2, 1),
    Sketcher.Constraint("Coincident", 2, 2, 3, 1),
    Sketcher.Constraint("Coincident", 3, 2, 0, 1),
    Sketcher.Constraint("Vertical", 0),
    Sketcher.Constraint("Horizontal", 1),
    Sketcher.Constraint("Vertical", 2),
    Sketcher.Constraint("Horizontal", 3),
    Sketcher.Constraint("DistanceY", 0, 2, 0, 1, Q("1.3 mm")),
    Sketcher.Constraint("DistanceX", -1, 1, 1, 2, Q("18 mm")),
    Sketcher.Constraint("DistanceY", -1, 1, 0, 2, Q("42.26 mm")),
    Sketcher.Constraint("DistanceX", 1, 2, 1, 1, Q("0.098173 mm")),
])
sketch20.setExpression("Constraints[8]", "Params.sketch20_height")
pocket10 = body.newObject("PartDesign::Pocket", "Pocket009")
pocket10.Profile = sketch20
pocket10.setExpression("Length", "Params.pocket10_length")
pocket10.Reversed = True

doc.recompute()
